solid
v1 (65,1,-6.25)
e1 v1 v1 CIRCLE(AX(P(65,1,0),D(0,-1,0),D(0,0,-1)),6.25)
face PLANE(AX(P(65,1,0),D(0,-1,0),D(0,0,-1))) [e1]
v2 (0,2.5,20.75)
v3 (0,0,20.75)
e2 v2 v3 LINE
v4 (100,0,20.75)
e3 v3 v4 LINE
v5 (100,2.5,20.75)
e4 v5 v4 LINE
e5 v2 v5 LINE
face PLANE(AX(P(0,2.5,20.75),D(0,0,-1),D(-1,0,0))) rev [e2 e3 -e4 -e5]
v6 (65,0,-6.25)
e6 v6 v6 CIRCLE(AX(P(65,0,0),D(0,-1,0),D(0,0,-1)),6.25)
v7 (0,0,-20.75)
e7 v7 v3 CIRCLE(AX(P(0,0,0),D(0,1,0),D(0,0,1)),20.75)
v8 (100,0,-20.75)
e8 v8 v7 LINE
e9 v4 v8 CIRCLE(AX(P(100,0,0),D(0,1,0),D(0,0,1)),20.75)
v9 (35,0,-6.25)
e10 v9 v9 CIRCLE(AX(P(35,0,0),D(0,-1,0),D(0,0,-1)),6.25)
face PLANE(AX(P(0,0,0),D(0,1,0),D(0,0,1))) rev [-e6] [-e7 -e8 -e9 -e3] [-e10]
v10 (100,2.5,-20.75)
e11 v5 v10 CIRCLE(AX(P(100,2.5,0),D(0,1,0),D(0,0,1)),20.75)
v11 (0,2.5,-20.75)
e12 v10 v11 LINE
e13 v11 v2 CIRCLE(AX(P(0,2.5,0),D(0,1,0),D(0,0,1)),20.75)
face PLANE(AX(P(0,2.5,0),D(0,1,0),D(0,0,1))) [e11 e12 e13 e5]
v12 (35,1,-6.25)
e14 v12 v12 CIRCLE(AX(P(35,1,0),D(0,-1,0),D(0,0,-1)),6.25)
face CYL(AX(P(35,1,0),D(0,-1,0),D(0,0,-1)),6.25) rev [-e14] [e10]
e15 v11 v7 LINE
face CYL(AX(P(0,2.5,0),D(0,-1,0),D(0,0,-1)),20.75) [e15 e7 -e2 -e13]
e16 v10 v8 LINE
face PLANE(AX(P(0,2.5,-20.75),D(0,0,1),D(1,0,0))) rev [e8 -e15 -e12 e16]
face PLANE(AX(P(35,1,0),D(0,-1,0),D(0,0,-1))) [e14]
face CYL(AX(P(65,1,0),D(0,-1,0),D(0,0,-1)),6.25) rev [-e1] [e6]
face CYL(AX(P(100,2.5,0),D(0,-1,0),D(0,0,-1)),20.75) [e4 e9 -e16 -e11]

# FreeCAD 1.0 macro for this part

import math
import FreeCAD as App
import Part
import Sketcher

doc = App.newDocument("Part")
params = doc.addObject("Spreadsheet::Sheet", "Params")
for row, (alias, value) in enumerate([
    ("sketch1_width", "100 mm"),
    ("sketch1_radius", "20.75 mm"),
    ("pad1_length", "2.5 mm"),
    ("sketch2_diameter", "12.5 mm"),
    ("pocket1_length", "1 mm"),
], start=1):
    params.set(f"A{row}", alias)
    params.set(f"B{row}", "=" + value)
    params.setAlias(f"B{row}", alias)

body = doc.addObject("PartDesign::Body", "Body")

# Sketch on XZ plane
sketch1 = doc.addObject("Sketcher::SketchObject", "Sketch")
body.addObject(sketch1)
sketch1.AttachmentSupport = (doc.XZ_Plane, [""])
sketch1.MapMode = "FlatFace"
sketch1.addGeometry([
    Part.LineSegment(App.Vector(100, -20.75, 0), App.Vector(0, -20.75, 0)),
    Part.ArcOfCircle(Part.Circle(App.Vector(0, 0, 0), App.Vector(0, 0, 1), 20.75), math.radians(90), math.radians(270)),
    Part.LineSegment(App.Vector(0, 20.75, 0), App.Vector(100, 20.75, 0)),
    Part.ArcOfCircle(Part.Circle(App.Vector(100, 0, 0), App.Vector(0, 0, 1), 20.75), math.radians(-90), math.radians(90)),
], False)
sketch1.addConstraint([
    Sketcher.Constraint("Tangent", 0, 2, 1, 2),
    Sketcher.Constraint("Tangent", 1, 1, 2, 1),
    Sketcher.Constraint("Tangent", 2, 2, 3, 2),
    Sketcher.Constraint("Tangent", 3, 1, 0, 1),
    Sketcher.Constraint("Horizontal", 0),
    Sketcher.Constraint("Horizontal", 2),
    Sketcher.Constraint("Coincident", 1, 3, -1, 1),
    Sketcher.Constraint("DistanceX", 0, 2, 0, 1, 100.0),
    Sketcher.Constraint("Radius", 1, 20.75),
])
sketch1.setExpression("Constraints[7]", "Params.sketch1_width")
sketch1.setExpression("Constraints[8]", "Params.sketch1_radius")
pad1 = doc.addObject("PartDesign::Pad", "Pad")
body.addObject(pad1)
pad1.Profile = sketch1
pad1.setExpression("Length", "Params.pad1_length")
pad1.Reversed = True

# Sketch on XZ plane
sketch2 = doc.addObject("Sketcher::SketchObject", "Sketch001")
body.addObject(sketch2)
sketch2.AttachmentSupport = (doc.XZ_Plane, [""])
sketch2.MapMode = "FlatFace"
sketch2.addGeometry([
    Part.Circle(App.Vector(35, 0, 0), App.Vector(0, 0, 1), 6.25),
    Part.Circle(App.Vector(65, 0, 0), App.Vector(0, 0, 1), 6.25),
], False)
sketch2.addConstraint([
    Sketcher.Constraint("Equal", 0, 1),
    Sketcher.Constraint("PointOnObject", 0, 3, -1),
    Sketcher.Constraint("PointOnObject", 1, 3, -1),
    Sketcher.Constraint("Diameter", 0, 12.5),
    Sketcher.Constraint("DistanceX", -1, 1, 0, 3, 35.0),
    Sketcher.Constraint("DistanceX", -1, 1, 1, 3, 65.0),
])
sketch2.setExpression("Constraints[3]", "Params.sketch2_diameter")
pocket1 = doc.addObject("PartDesign::Pocket", "Pocket")
body.addObject(pocket1)
pocket1.Profile = sketch2
pocket1.setExpression("Length", "Params.pocket1_length")

doc.recompute()
